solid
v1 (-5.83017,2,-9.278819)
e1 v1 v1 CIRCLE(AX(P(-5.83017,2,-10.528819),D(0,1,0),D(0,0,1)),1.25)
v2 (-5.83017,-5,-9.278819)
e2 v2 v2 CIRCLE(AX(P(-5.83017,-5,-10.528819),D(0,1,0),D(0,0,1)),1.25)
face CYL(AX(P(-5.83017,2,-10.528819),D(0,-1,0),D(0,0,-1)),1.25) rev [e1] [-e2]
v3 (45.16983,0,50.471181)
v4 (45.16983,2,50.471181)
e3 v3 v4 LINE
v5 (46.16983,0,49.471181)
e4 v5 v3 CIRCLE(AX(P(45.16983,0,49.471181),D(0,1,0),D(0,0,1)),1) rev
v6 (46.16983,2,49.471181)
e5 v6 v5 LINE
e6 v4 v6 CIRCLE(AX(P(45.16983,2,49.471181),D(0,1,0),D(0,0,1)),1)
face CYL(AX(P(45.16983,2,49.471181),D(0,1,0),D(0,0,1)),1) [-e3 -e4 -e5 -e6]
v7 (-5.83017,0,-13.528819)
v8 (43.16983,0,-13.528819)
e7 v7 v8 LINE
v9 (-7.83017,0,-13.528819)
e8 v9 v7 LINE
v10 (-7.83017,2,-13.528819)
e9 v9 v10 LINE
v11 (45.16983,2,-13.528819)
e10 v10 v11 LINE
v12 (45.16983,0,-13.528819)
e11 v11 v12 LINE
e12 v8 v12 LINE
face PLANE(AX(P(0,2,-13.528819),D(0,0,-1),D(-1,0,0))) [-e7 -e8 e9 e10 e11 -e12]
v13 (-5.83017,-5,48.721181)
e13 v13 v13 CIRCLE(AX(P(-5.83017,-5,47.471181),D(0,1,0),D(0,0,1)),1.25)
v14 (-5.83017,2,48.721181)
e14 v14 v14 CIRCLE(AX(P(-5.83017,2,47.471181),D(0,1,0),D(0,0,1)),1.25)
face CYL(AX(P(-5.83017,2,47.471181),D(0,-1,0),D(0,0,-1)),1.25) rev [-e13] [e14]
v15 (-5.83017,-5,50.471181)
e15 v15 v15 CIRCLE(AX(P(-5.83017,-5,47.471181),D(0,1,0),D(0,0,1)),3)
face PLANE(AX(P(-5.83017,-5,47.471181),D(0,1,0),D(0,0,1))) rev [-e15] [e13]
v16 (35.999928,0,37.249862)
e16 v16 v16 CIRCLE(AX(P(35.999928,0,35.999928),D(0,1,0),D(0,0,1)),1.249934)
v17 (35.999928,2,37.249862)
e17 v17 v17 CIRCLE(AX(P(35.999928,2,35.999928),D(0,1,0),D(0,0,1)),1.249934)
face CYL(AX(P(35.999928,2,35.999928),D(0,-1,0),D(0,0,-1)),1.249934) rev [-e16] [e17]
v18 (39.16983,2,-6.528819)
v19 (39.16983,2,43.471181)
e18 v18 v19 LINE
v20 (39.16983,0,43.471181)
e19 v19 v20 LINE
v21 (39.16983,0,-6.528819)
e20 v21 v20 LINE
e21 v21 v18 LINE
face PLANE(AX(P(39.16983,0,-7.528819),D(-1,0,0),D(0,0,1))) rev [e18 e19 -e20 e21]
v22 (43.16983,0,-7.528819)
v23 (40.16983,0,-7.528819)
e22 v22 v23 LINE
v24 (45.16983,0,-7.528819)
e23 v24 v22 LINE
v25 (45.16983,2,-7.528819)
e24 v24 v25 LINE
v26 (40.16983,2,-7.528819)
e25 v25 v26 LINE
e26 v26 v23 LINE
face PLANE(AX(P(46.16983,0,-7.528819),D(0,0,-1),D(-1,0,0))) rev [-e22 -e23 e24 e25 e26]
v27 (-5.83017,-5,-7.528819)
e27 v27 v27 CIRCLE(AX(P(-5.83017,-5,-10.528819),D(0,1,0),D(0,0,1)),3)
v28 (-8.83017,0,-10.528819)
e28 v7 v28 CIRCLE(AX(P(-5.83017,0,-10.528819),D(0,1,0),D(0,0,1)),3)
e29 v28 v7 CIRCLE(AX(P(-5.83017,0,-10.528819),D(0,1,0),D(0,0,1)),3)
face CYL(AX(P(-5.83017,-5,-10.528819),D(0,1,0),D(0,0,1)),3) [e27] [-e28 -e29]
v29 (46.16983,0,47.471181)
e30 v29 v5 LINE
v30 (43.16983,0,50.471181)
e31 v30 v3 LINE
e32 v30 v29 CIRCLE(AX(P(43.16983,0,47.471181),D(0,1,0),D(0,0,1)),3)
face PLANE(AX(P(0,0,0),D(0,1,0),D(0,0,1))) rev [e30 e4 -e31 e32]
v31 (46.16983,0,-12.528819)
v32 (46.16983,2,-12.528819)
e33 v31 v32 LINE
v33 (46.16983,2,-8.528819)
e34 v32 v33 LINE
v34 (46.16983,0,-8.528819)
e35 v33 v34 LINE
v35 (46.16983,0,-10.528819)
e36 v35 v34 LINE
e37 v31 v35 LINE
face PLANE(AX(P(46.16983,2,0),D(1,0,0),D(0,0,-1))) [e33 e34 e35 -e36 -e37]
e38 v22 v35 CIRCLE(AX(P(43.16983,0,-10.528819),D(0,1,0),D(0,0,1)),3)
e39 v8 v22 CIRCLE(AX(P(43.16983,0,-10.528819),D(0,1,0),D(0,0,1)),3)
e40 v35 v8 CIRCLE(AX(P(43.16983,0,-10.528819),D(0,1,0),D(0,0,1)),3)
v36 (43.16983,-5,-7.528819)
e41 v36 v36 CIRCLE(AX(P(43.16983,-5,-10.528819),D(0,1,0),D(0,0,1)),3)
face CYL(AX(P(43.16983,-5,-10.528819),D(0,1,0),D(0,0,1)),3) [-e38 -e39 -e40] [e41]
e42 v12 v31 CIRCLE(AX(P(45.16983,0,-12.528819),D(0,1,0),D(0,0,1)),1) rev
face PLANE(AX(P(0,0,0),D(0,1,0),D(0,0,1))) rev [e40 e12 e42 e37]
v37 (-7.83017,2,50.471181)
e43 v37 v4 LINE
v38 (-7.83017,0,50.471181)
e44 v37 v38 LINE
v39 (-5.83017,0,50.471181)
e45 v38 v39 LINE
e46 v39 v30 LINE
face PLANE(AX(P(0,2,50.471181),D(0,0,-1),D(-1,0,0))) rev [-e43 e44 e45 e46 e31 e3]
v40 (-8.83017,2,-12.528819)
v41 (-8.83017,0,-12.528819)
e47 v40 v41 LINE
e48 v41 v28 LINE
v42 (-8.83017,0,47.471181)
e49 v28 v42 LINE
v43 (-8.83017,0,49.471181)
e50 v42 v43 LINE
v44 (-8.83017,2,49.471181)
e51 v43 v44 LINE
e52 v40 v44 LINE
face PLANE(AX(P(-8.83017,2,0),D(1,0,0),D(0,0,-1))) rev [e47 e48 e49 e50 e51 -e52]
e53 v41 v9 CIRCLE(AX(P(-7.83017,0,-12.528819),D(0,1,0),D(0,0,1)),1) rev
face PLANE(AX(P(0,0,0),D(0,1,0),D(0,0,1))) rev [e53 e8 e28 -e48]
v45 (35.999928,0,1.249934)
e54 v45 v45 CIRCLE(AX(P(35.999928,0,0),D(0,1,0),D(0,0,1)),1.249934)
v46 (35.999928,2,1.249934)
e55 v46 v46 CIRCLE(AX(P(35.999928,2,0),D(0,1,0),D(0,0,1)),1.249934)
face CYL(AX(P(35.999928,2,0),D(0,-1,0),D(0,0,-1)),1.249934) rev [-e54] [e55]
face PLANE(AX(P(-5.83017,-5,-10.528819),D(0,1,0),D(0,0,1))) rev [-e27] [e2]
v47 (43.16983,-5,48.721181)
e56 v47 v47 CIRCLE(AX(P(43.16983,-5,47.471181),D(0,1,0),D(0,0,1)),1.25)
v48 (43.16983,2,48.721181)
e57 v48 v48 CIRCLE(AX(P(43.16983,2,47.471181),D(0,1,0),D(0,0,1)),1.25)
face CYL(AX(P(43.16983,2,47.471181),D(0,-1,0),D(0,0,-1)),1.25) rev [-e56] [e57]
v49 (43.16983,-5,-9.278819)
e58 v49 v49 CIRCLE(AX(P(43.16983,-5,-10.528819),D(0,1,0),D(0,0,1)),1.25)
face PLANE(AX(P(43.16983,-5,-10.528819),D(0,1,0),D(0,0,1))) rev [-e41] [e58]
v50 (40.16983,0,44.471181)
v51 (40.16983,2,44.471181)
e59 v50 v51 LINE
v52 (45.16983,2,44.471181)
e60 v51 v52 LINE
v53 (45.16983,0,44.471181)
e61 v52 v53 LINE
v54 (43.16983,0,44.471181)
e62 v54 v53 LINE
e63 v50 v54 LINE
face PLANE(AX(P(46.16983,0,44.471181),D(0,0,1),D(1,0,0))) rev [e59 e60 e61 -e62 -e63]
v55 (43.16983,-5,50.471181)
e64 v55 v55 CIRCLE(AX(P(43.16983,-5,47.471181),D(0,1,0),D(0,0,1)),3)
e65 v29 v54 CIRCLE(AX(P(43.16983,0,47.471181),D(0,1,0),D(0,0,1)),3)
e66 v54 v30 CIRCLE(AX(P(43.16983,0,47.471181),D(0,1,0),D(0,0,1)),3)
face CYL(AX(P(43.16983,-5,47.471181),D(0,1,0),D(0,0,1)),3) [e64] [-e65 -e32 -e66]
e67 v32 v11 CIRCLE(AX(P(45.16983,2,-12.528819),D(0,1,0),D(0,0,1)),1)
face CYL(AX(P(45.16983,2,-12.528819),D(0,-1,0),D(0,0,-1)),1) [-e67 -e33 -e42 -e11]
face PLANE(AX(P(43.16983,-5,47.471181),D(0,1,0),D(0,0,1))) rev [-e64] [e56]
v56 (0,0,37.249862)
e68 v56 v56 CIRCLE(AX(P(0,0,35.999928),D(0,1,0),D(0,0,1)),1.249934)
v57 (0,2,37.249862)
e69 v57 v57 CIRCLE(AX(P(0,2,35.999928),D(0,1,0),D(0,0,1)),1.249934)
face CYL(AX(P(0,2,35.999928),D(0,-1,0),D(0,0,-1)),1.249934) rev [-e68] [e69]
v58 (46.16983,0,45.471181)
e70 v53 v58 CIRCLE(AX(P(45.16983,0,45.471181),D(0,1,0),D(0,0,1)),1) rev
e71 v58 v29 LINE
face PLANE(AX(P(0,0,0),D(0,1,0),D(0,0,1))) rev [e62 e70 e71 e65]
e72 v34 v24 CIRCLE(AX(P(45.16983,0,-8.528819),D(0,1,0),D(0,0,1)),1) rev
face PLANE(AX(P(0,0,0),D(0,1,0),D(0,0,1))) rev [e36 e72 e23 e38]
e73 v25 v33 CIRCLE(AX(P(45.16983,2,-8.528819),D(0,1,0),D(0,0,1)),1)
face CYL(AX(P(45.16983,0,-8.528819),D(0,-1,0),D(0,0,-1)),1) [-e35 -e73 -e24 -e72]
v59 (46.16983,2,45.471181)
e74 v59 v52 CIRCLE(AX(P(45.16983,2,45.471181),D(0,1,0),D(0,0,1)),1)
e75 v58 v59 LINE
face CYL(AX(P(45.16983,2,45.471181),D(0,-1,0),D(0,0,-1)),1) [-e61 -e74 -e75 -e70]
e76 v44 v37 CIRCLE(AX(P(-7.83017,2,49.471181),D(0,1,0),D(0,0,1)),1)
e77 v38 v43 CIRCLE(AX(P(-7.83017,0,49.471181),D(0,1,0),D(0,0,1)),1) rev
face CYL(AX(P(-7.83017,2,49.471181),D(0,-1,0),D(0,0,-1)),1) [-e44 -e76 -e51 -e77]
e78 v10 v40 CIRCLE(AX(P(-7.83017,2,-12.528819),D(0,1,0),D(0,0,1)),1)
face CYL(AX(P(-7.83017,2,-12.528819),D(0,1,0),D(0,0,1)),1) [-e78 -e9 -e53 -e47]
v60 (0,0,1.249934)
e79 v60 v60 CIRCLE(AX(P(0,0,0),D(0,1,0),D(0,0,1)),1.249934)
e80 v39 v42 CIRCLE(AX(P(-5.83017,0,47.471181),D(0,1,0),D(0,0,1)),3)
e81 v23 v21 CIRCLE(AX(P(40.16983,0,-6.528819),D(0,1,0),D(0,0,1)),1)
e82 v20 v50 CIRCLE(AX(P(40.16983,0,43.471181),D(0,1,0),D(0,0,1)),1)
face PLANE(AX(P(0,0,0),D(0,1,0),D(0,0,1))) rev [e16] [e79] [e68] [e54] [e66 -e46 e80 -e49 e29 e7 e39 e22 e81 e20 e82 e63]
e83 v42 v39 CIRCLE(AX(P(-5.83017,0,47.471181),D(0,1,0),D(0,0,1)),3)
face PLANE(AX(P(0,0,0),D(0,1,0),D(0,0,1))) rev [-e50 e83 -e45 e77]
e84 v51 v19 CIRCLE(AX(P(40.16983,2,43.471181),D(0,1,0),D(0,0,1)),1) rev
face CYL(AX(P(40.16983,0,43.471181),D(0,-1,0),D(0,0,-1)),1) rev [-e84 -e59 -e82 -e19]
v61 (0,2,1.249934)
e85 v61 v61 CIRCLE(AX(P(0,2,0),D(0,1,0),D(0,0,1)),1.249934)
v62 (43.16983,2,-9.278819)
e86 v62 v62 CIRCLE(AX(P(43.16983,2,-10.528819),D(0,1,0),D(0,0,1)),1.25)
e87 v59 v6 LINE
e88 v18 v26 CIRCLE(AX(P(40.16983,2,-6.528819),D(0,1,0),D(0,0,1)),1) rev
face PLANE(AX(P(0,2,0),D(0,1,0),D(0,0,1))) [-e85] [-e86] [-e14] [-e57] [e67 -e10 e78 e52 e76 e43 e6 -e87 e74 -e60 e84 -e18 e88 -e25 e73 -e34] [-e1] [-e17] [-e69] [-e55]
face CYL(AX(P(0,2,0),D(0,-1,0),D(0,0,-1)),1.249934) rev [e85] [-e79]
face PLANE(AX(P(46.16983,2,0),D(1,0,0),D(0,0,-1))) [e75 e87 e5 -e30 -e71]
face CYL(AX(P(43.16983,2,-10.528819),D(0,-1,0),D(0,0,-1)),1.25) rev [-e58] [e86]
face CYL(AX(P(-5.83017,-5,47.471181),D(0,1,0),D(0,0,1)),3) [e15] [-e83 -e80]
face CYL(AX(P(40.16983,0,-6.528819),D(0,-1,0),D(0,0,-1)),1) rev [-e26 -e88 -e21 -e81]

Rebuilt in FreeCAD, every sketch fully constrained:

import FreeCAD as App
import Part
import Sketcher
from FreeCAD import Vector


def edges_at(feature, points):
    """Names of the edges that pass closest to the given points."""
    edges = feature.Shape.Edges
    near = lambda p: min(range(len(edges)), key=lambda i: edges[i].distToShape(Part.Vertex(*p))[0])
    return sorted({f"Edge{near(p) + 1}" for p in points})


def add_polygon(sketch, points):
    """Adds a closed chain of lines whose ends are joined by coincident constraints."""
    first, n = sketch.GeometryCount, len(points)
    for a, b in zip(points, points[1:] + points[:1]):
        sketch.addGeometry(Part.LineSegment(App.Vector(*a, 0), App.Vector(*b, 0)), False)
    for i in range(n):
        sketch.addConstraint(Sketcher.Constraint("Coincident", first + i, 2, first + (i + 1) % n, 1))

doc = App.newDocument("Part")
body = doc.addObject("PartDesign::Body", "Body")

# Sketch on XZ plane
sketch1 = body.newObject("Sketcher::SketchObject", "Sketch")
sketch1.AttachmentSupport = (doc.getObject("XZ_Plane"), [""])
sketch1.MapMode = "FlatFace"
add_polygon(sketch1, [(-8.8, -13.5), (-8.8, 50.5), (46.2, 50.5), (46.2, -13.5)])  # lines 0-3
sketch1.addGeometry(Part.Circle(Vector(-5.8, 47.5, 0), Vector(0, 0, 1), 1.2), False)  # 4
sketch1.addGeometry(Part.Circle(Vector(0, 36, 0), Vector(0, 0, 1), 1.2), False)  # 5
sketch1.addGeometry(Part.Circle(Vector(43.2, 47.5, 0), Vector(0, 0, 1), 1.2), False)  # 6
sketch1.addGeometry(Part.Circle(Vector(36, 36, 0), Vector(0, 0, 1), 1.2), False)  # 7
sketch1.addGeometry(Part.Circle(Vector(0, 0, 0), Vector(0, 0, 1), 1.2), False)  # 8
sketch1.addGeometry(Part.Circle(Vector(-5.8, -10.5, 0), Vector(0, 0, 1), 1.2), False)  # 9
sketch1.addGeometry(Part.Circle(Vector(36, 0, 0), Vector(0, 0, 1), 1.2), False)  # 10
sketch1.addGeometry(Part.Circle(Vector(43.2, -10.5, 0), Vector(0, 0, 1), 1.2), False)  # 11
sketch1.addConstraint(Sketcher.Constraint("Vertical", 0))
sketch1.addConstraint(Sketcher.Constraint("Horizontal", 1))
sketch1.addConstraint(Sketcher.Constraint("Vertical", 2))
sketch1.addConstraint(Sketcher.Constraint("Horizontal", 3))
sketch1.addConstraint(Sketcher.Constraint("Coincident", 8, 3, -1, 1))
sketch1.addConstraint(Sketcher.Constraint("Equal", 4, 6))
sketch1.addConstraint(Sketcher.Constraint("Equal", 5, 7))
sketch1.addConstraint(Sketcher.Constraint("Equal", 7, 8))
sketch1.addConstraint(Sketcher.Constraint("Equal", 6, 9))
sketch1.addConstraint(Sketcher.Constraint("Equal", 8, 10))
sketch1.addConstraint(Sketcher.Constraint("Equal", 9, 11))
sketch1.addConstraint(Sketcher.Constraint("PointOnObject", 5, 3, -2))
sketch1.addConstraint(Sketcher.Constraint("PointOnObject", 10, 3, -1))
sketch1.addConstraint(Sketcher.Constraint("Horizontal", 4, 3, 6, 3))
sketch1.addConstraint(Sketcher.Constraint("Horizontal", 5, 3, 7, 3))
sketch1.addConstraint(Sketcher.Constraint("Horizontal", 9, 3, 11, 3))
sketch1.addConstraint(Sketcher.Constraint("Vertical", 4, 3, 9, 3))
sketch1.addConstraint(Sketcher.Constraint("Vertical", 7, 3, 10, 3))
sketch1.addConstraint(Sketcher.Constraint("Vertical", 6, 3, 11, 3))
sketch1.addConstraint(Sketcher.Constraint("Diameter", 4, 2.5))
sketch1.addConstraint(Sketcher.Constraint("DistanceX", 1, 1, 1, 2, 55.0))
sketch1.addConstraint(Sketcher.Constraint("DistanceY", 0, 1, 0, 2, 64.0))
sketch1.addConstraint(Sketcher.Constraint("DistanceX", 4, 3, 6, 3, 49.0))
sketch1.addConstraint(Sketcher.Constraint("DistanceY", 9, 3, 4, 3, 58.0))
sketch1.addConstraint(Sketcher.Constraint("DistanceX", 0, 2, 4, 3, 3.0))
sketch1.addConstraint(Sketcher.Constraint("DistanceY", 4, 3, 0, 2, 3.0))
sketch1.addConstraint(Sketcher.Constraint("Diameter", 5, 2.499868))
sketch1.addConstraint(Sketcher.Constraint("DistanceX", 7, 3, 6, 3, 7.169902))
sketch1.addConstraint(Sketcher.Constraint("DistanceX", 4, 3, -1, 1, 5.83017))
sketch1.addConstraint(Sketcher.Constraint("DistanceY", -1, 1, 4, 3, 47.471181))
sketch1.addConstraint(Sketcher.Constraint("DistanceY", -1, 1, 5, 3, 35.999928))
pad1 = body.newObject("PartDesign::Pad", "Pad")
pad1.Profile = sketch1
pad1.Length = 2
pad1.Reversed = True

# Sketch on XZ plane
sketch2 = body.newObject("Sketcher::SketchObject", "Sketch001")
sketch2.AttachmentSupport = (doc.getObject("XZ_Plane"), [""])
sketch2.MapMode = "FlatFace"
sketch2.AttachmentOffset = App.Placement(Vector(0, 0, -2), App.Rotation())
add_polygon(sketch2, [(39, -8), (39, 44), (46, 44), (46, -8)])  # lines 0-3
sketch2.addConstraint(Sketcher.Constraint("Vertical", 0))
sketch2.addConstraint(Sketcher.Constraint("Horizontal", 1))
sketch2.addConstraint(Sketcher.Constraint("Vertical", 2))
sketch2.addConstraint(Sketcher.Constraint("Horizontal", 3))
sketch2.addConstraint(Sketcher.Constraint("DistanceX", 1, 1, 1, 2, 7.0))
sketch2.addConstraint(Sketcher.Constraint("DistanceY", 0, 1, 0, 2, 52.0))
sketch2.addConstraint(Sketcher.Constraint("DistanceX", -1, 1, 0, 2, 39.16983))
sketch2.addConstraint(Sketcher.Constraint("DistanceY", -1, 1, 0, 2, 44.471181))
pocket1 = body.newObject("PartDesign::Pocket", "Pocket")
pocket1.Profile = sketch2
pocket1.Length = 2
pocket1.Reversed = True
doc.recompute()

fillet = body.newObject("PartDesign::Fillet", "Fillet")
fillet.Base = (pocket1, edges_at(pocket1, [
    (46.17, 1, -13.529),
    (46.17, 1, 50.471),
    (-8.83, 1, 50.471),
    (-8.83, 1, -13.529),
    (46.17, 1, -7.529),
    (46.17, 1, 44.471),
    (39.17, 1, 44.471),
    (39.17, 1, -7.529),
]))
fillet.Radius = 1

# Sketch on XZ plane
sketch3 = body.newObject("Sketcher::SketchObject", "Sketch002")
sketch3.AttachmentSupport = (doc.getObject("XZ_Plane"), [""])
sketch3.MapMode = "FlatFace"
sketch3.AttachmentOffset = App.Placement(Vector(0, 0, 5), App.Rotation())
sketch3.addGeometry(Part.Circle(Vector(-5.8, -10.5, 0), Vector(0, 0, 1), 3), False)
sketch3.addGeometry(Part.Circle(Vector(-5.8, -10.5, 0), Vector(0, 0, 1), 1.2), False)
sketch3.addGeometry(Part.Circle(Vector(43.2, -10.5, 0), Vector(0, 0, 1), 3), False)
sketch3.addGeometry(Part.Circle(Vector(43.2, -10.5, 0), Vector(0, 0, 1), 1.2), False)
sketch3.addGeometry(Part.Circle(Vector(43.2, 47.5, 0), Vector(0, 0, 1), 3), False)
sketch3.addGeometry(Part.Circle(Vector(43.2, 47.5, 0), Vector(0, 0, 1), 1.2), False)
sketch3.addGeometry(Part.Circle(Vector(-5.8, 47.5, 0), Vector(0, 0, 1), 3), False)
sketch3.addGeometry(Part.Circle(Vector(-5.8, 47.5, 0), Vector(0, 0, 1), 1.2), False)
sketch3.addConstraint(Sketcher.Constraint("Coincident", 1, 3, 0, 3))
sketch3.addConstraint(Sketcher.Constraint("Coincident", 3, 3, 2, 3))
sketch3.addConstraint(Sketcher.Constraint("Coincident", 5, 3, 4, 3))
sketch3.addConstraint(Sketcher.Constraint("Coincident", 7, 3, 6, 3))
sketch3.addConstraint(Sketcher.Constraint("Equal", 0, 2))
sketch3.addConstraint(Sketcher.Constraint("Equal", 1, 3))
sketch3.addConstraint(Sketcher.Constraint("Equal", 2, 4))
sketch3.addConstraint(Sketcher.Constraint("Equal", 3, 5))
sketch3.addConstraint(Sketcher.Constraint("Equal", 4, 6))
sketch3.addConstraint(Sketcher.Constraint("Equal", 5, 7))
sketch3.addConstraint(Sketcher.Constraint("Horizontal", 1, 3, 2, 3))
sketch3.addConstraint(Sketcher.Constraint("Horizontal", 5, 3, 6, 3))
sketch3.addConstraint(Sketcher.Constraint("Vertical", 3, 3, 4, 3))
sketch3.addConstraint(Sketcher.Constraint("Vertical", 1, 3, 6, 3))
sketch3.addConstraint(Sketcher.Constraint("Diameter", 0, 6.0))
sketch3.addConstraint(Sketcher.Constraint("Diameter", 1, 2.5))
sketch3.addConstraint(Sketcher.Constraint("DistanceX", 0, 3, 2, 3, 49.0))
sketch3.addConstraint(Sketcher.Constraint("DistanceY", 2, 3, 4, 3, 58.0))
sketch3.addConstraint(Sketcher.Constraint("DistanceX", 0, 3, -1, 1, 5.83017))
sketch3.addConstraint(Sketcher.Constraint("DistanceY", 0, 3, -1, 1, 10.528819))
pad2 = body.newObject("PartDesign::Pad", "Pad001")
pad2.Profile = sketch3
pad2.Length = 7
pad2.Reversed = True

doc.recompute()
